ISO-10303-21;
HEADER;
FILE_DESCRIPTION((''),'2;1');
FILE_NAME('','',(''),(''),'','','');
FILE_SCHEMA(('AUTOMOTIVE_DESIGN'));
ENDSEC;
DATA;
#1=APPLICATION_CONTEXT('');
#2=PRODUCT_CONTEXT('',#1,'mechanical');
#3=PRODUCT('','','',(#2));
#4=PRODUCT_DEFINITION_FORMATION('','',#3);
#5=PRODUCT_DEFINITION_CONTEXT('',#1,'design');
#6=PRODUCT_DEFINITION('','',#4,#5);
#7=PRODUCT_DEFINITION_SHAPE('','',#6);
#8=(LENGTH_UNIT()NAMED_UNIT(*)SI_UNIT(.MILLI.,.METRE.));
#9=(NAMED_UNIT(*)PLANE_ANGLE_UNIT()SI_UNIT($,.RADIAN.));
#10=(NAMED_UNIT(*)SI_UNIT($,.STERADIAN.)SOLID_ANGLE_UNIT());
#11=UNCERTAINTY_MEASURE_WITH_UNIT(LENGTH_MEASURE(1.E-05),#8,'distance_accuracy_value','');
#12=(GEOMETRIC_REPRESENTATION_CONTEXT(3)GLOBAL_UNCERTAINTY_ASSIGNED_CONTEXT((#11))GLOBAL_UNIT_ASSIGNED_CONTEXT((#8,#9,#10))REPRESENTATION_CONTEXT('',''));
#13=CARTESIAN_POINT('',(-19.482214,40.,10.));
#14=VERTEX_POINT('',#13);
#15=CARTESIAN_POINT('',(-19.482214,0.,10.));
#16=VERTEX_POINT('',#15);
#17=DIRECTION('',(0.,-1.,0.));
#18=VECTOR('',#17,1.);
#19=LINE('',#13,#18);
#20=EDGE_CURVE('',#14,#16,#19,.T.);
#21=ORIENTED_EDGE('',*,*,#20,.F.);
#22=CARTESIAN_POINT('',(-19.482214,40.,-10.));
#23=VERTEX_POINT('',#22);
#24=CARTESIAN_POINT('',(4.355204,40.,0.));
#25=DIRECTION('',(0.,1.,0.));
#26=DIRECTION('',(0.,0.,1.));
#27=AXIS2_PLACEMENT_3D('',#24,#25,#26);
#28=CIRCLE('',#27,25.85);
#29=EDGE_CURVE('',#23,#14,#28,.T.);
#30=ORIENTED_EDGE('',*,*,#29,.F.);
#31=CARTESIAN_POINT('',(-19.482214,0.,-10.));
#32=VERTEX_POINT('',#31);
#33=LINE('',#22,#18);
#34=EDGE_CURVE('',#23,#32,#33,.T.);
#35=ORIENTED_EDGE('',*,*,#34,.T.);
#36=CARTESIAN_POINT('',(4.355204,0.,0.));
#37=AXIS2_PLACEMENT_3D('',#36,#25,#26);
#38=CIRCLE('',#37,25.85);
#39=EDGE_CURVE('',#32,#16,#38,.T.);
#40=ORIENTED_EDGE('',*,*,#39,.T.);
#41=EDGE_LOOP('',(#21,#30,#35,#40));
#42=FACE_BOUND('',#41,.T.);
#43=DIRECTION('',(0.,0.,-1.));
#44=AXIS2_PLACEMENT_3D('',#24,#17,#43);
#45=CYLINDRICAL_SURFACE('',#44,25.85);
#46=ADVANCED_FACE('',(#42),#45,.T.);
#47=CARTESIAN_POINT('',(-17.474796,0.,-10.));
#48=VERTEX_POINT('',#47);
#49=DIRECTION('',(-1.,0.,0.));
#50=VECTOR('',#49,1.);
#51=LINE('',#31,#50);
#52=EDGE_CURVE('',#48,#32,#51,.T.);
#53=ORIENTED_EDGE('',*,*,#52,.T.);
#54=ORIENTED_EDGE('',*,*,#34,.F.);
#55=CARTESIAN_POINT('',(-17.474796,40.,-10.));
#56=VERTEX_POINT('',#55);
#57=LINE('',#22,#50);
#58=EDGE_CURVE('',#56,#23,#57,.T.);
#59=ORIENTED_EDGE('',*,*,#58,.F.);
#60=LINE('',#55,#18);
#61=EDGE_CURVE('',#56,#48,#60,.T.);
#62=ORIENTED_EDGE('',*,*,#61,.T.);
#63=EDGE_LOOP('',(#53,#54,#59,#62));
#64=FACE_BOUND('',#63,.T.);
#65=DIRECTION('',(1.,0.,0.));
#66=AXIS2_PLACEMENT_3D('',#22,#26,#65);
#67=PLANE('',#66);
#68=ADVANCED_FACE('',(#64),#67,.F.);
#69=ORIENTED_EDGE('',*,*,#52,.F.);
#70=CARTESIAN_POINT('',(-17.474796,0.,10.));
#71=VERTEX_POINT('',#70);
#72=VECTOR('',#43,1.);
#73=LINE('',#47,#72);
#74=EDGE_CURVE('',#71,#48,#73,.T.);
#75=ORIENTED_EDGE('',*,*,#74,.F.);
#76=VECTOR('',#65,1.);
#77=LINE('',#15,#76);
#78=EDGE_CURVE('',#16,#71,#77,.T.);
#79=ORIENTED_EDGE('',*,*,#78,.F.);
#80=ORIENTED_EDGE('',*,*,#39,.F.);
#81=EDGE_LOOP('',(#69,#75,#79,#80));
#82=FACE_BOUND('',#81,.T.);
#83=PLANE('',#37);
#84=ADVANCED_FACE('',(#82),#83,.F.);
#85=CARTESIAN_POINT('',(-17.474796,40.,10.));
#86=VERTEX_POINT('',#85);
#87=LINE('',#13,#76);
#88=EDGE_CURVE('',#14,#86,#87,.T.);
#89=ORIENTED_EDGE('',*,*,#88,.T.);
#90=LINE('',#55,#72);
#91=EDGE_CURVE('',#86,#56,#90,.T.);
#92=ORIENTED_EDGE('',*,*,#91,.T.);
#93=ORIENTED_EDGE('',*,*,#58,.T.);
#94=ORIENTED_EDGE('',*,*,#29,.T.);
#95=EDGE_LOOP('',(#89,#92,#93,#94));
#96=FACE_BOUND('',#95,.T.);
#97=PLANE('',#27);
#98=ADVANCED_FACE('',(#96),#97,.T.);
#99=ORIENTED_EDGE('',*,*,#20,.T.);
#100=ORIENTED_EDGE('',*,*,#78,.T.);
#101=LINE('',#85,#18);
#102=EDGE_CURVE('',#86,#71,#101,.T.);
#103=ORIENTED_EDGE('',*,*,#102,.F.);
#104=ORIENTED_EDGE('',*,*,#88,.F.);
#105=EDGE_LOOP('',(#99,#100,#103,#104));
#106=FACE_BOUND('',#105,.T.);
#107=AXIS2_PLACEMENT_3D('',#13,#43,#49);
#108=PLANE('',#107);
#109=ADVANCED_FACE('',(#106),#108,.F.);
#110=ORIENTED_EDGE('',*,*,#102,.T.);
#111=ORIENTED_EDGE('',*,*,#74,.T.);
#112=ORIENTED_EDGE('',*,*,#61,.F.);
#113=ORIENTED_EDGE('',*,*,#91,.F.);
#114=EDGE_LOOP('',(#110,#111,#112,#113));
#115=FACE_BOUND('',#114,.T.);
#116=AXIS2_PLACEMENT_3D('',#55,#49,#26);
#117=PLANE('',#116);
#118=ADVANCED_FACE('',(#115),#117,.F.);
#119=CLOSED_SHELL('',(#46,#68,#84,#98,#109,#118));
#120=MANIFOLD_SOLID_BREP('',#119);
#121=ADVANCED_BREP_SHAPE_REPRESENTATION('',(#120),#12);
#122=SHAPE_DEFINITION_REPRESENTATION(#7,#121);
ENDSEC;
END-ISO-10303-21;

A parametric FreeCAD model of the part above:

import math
import FreeCAD as App
import Part
import Sketcher

doc = App.newDocument("Part")
body = doc.addObject("PartDesign::Body", "Body")

# Sketch on XZ plane
sketch1 = doc.addObject("Sketcher::SketchObject", "Sketch")
body.addObject(sketch1)
sketch1.AttachmentSupport = (doc.XZ_Plane, [""])
sketch1.MapMode = "FlatFace"
sketch1.addGeometry([
    Part.LineSegment(App.Vector(-17.5, -10, 0), App.Vector(-19.5, -10, 0)),
    Part.ArcOfCircle(Part.Circle(App.Vector(4.4, 0, 0), App.Vector(0, 0, 1), 25.9), math.radians(157), math.radians(203)),
    Part.LineSegment(App.Vector(-19.5, 10, 0), App.Vector(-17.5, 10, 0)),
    Part.LineSegment(App.Vector(-17.5, 10, 0), App.Vector(-17.5, -10, 0)),
], False)
sketch1.addConstraint([
    Sketcher.Constraint("Coincident", 0, 2, 1, 2),
    Sketcher.Constraint("Coincident", 1, 1, 2, 1),
    Sketcher.Constraint("Coincident", 2, 2, 3, 1),
    Sketcher.Constraint("Coincident", 3, 2, 0, 1),
    Sketcher.Constraint("Horizontal", 0),
    Sketcher.Constraint("Horizontal", 2),
    Sketcher.Constraint("Vertical", 3),
    Sketcher.Constraint("Symmetric", 0, 2, 1, 1, -1),
    Sketcher.Constraint("DistanceY", 3, 2, 3, 1, 20.0),
    Sketcher.Constraint("Radius", 1, 25.85),
    Sketcher.Constraint("DistanceX", 2, 2, 1, 3, 21.83),
    Sketcher.Constraint("DistanceX", -1, 1, 1, 3, 4.355204),
])
pad1 = doc.addObject("PartDesign::Pad", "Pad")
body.addObject(pad1)
pad1.Profile = sketch1
pad1.Length = 40
pad1.Reversed = True

doc.recompute()
